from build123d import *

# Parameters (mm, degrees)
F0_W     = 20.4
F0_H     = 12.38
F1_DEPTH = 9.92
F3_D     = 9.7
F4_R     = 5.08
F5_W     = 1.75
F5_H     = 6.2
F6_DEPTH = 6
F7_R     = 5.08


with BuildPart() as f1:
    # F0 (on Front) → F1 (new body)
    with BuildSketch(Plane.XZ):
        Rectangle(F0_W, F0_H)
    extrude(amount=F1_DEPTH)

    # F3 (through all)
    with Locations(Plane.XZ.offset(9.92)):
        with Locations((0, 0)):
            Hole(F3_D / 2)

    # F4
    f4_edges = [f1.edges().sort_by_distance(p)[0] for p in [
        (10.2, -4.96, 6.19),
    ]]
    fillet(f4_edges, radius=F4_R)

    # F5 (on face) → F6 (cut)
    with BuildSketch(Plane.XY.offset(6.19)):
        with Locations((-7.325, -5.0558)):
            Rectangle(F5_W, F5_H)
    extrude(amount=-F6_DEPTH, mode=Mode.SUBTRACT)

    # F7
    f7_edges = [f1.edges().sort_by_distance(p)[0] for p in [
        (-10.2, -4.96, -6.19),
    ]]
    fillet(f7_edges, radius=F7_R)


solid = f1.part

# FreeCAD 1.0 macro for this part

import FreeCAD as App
import Part
import Sketcher
from FreeCAD import Vector
Q = App.Units.Quantity


def edges_at(feature, points):
    """Names of the edges that pass closest to the given points."""
    edges = feature.Shape.Edges
    near = lambda p: min(range(len(edges)), key=lambda i: edges[i].distToShape(Part.Vertex(*p))[0])
    return sorted({f"Edge{near(p) + 1}" for p in points})

doc = App.newDocument("Part")
params = doc.addObject("Spreadsheet::Sheet", "Params")
for row, (alias, value) in enumerate([
    ("sketch1_width", "20.4 mm"),
    ("sketch1_height", "12.38 mm"),
    ("pad1_length", "9.92 mm"),
    ("sketch2_diameter", "9.7 mm"),
    ("hole_diameter", "9.7 mm"),
    ("fillet_radius", "5.08 mm"),
    ("sketch3_height", "6.2 mm"),
    ("sketch3_width", "1.75 mm"),
    ("pocket1_length", "6 mm"),
    ("fillet2_radius", "5.08 mm"),
], start=1):
    params.set(f"A{row}", alias)
    params.set(f"B{row}", "=" + value)
    params.setAlias(f"B{row}", alias)

body = doc.addObject("PartDesign::Body", "Body")

# Sketch on XZ plane
sketch1 = body.newObject("Sketcher::SketchObject", "Sketch")
sketch1.AttachmentSupport = (doc.getObject("XZ_Plane"), [""])
sketch1.MapMode = "FlatFace"
sketch1.addGeometry([
    Part.LineSegment(Vector(-10, 6, 0), Vector(-10, -6, 0)),
    Part.LineSegment(Vector(-10, -6, 0), Vector(10, -6, 0)),
    Part.LineSegment(Vector(10, -6, 0), Vector(10, 6, 0)),
    Part.LineSegment(Vector(10, 6, 0), Vector(-10, 6, 0)),
], False)
sketch1.addConstraint([
    Sketcher.Constraint("Coincident", 0, 2, 1, 1),
    Sketcher.Constraint("Coincident", 1, 2, 2, 1),
    Sketcher.Constraint("Coincident", 2, 2, 3, 1),
    Sketcher.Constraint("Coincident", 3, 2, 0, 1),
    Sketcher.Constraint("Vertical", 0),
    Sketcher.Constraint("Horizontal", 1),
    Sketcher.Constraint("Vertical", 2),
    Sketcher.Constraint("Horizontal", 3),
    Sketcher.Constraint("Symmetric", 0, 2, 2, 2, -1, 1),
    Sketcher.Constraint("DistanceX", 1, 1, 1, 2, Q("20.4 mm")),
    Sketcher.Constraint("DistanceY", 0, 2, 0, 1, Q("12.38 mm")),
])
sketch1.setExpression("Constraints[9]", "Params.sketch1_width")
sketch1.setExpression("Constraints[10]", "Params.sketch1_height")
pad1 = body.newObject("PartDesign::Pad", "Pad")
pad1.Profile = sketch1
pad1.setExpression("Length", "Params.pad1_length")

# Sketch on XZ plane
sketch2 = body.newObject("Sketcher::SketchObject", "Sketch001")
sketch2.AttachmentSupport = (doc.getObject("XZ_Plane"), [""])
sketch2.MapMode = "FlatFace"
sketch2.AttachmentOffset = App.Placement(Vector(0, 0, 9.92), App.Rotation())
sketch2.addGeometry(Part.Circle(Vector(0, 0, 0), Vector(0, 0, 1), 4.8), False)
sketch2.addConstraint([
    Sketcher.Constraint("Coincident", 0, 3, -1, 1),
    Sketcher.Constraint("Diameter", 0, Q("9.7 mm")),
])
sketch2.setExpression("Constraints[1]", "Params.sketch2_diameter")
doc.recompute()
hole = body.newObject("PartDesign::Hole", "Hole")
hole.Profile = sketch2
hole.ThreadType = "None"
hole.setExpression("Diameter", "Params.hole_diameter")
hole.DepthType = "ThroughAll"
doc.recompute()

fillet = body.newObject("PartDesign::Fillet", "Fillet")
fillet.Base = (hole, edges_at(hole, [(10.2, -4.96, 6.19)]))
fillet.setExpression("Radius", "Params.fillet_radius")

# Sketch on XY plane
sketch3 = body.newObject("Sketcher::SketchObject", "Sketch002")
sketch3.AttachmentSupport = (doc.getObject("XY_Plane"), [""])
sketch3.MapMode = "FlatFace"
sketch3.AttachmentOffset = App.Placement(Vector(0, 0, 6.19), App.Rotation())
sketch3.addGeometry([
    Part.LineSegment(Vector(-8.2, -2, 0), Vector(-8.2, -8.2, 0)),
    Part.LineSegment(Vector(-8.2, -8.2, 0), Vector(-6.5, -8.2, 0)),
    Part.LineSegment(Vector(-6.5, -8.2, 0), Vector(-6.5, -2, 0)),
    Part.LineSegment(Vector(-6.5, -2, 0), Vector(-8.2, -2, 0)),
], False)
sketch3.addConstraint([
    Sketcher.Constraint("Coincident", 0, 2, 1, 1),
    Sketcher.Constraint("Coincident", 1, 2, 2, 1),
    Sketcher.Constraint("Coincident", 2, 2, 3, 1),
    Sketcher.Constraint("Coincident", 3, 2, 0, 1),
    Sketcher.Constraint("Vertical", 0),
    Sketcher.Constraint("Horizontal", 1),
    Sketcher.Constraint("Vertical", 2),
    Sketcher.Constraint("Horizontal", 3),
    Sketcher.Constraint("DistanceY", 0, 2, 0, 1, Q("6.2 mm")),
    Sketcher.Constraint("DistanceX", 1, 1, 1, 2, Q("1.75 mm")),
    Sketcher.Constraint("DistanceX", 0, 2, -1, 1, Q("8.2 mm")),
    Sketcher.Constraint("DistanceY", 0, 2, -1, 1, Q("8.1558 mm")),
])
sketch3.setExpression("Constraints[8]", "Params.sketch3_height")
sketch3.setExpression("Constraints[9]", "Params.sketch3_width")
pocket1 = body.newObject("PartDesign::Pocket", "Pocket")
pocket1.Profile = sketch3
pocket1.setExpression("Length", "Params.pocket1_length")
doc.recompute()

fillet2 = body.newObject("PartDesign::Fillet", "Fillet001")
fillet2.Base = (pocket1, edges_at(pocket1, [(-10.2, -4.96, -6.19)]))
fillet2.setExpression("Radius", "Params.fillet2_radius")

doc.recompute()
